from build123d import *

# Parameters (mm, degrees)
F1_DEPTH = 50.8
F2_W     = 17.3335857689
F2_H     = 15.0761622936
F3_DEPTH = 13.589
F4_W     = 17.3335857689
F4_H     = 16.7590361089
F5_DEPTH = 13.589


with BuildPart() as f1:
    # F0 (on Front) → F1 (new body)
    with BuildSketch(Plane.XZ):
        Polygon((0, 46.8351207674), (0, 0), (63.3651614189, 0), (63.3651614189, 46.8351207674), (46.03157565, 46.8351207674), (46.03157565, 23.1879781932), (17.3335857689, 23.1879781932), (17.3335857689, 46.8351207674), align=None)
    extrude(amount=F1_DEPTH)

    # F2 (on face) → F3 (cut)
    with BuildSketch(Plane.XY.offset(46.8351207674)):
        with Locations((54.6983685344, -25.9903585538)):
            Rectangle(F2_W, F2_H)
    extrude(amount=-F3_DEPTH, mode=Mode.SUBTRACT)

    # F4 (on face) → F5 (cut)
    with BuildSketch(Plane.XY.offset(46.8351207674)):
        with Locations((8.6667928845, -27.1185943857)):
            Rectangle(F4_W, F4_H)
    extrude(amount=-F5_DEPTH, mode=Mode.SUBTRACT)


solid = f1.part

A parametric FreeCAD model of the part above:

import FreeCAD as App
import Part
import Sketcher
Q = App.Units.Quantity

doc = App.newDocument("Part")
body = doc.addObject("PartDesign::Body", "Body")

sketch1 = doc.addObject("Sketcher::SketchObject", "Sketch")
body.addObject(sketch1)
sketch1.AttachmentSupport = (doc.XZ_Plane, [""])
sketch1.MapMode = "FlatFace"
sketch1.addGeometry(Part.LineSegment(App.Vector(0, 47, 0), App.Vector(0, 0, 0)), False)
sketch1.addGeometry(Part.LineSegment(App.Vector(0, 0, 0), App.Vector(63, 0, 0)), False)
sketch1.addGeometry(Part.LineSegment(App.Vector(63, 0, 0), App.Vector(63, 47, 0)), False)
sketch1.addGeometry(Part.LineSegment(App.Vector(63, 47, 0), App.Vector(46, 47, 0)), False)
sketch1.addGeometry(Part.LineSegment(App.Vector(46, 47, 0), App.Vector(46, 23, 0)), False)
sketch1.addGeometry(Part.LineSegment(App.Vector(46, 23, 0), App.Vector(17, 23, 0)), False)
sketch1.addGeometry(Part.LineSegment(App.Vector(17, 23, 0), App.Vector(17, 47, 0)), False)
sketch1.addGeometry(Part.LineSegment(App.Vector(17, 47, 0), App.Vector(0, 47, 0)), False)
sketch1.addConstraint(Sketcher.Constraint("Coincident", 0, 2, 1, 1))
sketch1.addConstraint(Sketcher.Constraint("Coincident", 1, 2, 2, 1))
sketch1.addConstraint(Sketcher.Constraint("Coincident", 2, 2, 3, 1))
sketch1.addConstraint(Sketcher.Constraint("Coincident", 3, 2, 4, 1))
sketch1.addConstraint(Sketcher.Constraint("Coincident", 4, 2, 5, 1))
sketch1.addConstraint(Sketcher.Constraint("Coincident", 5, 2, 6, 1))
sketch1.addConstraint(Sketcher.Constraint("Coincident", 6, 2, 7, 1))
sketch1.addConstraint(Sketcher.Constraint("Coincident", 7, 2, 0, 1))
sketch1.addConstraint(Sketcher.Constraint("Vertical", 0))
sketch1.addConstraint(Sketcher.Constraint("Horizontal", 1))
sketch1.addConstraint(Sketcher.Constraint("Vertical", 2))
sketch1.addConstraint(Sketcher.Constraint("Horizontal", 3))
sketch1.addConstraint(Sketcher.Constraint("Vertical", 4))
sketch1.addConstraint(Sketcher.Constraint("Horizontal", 5))
sketch1.addConstraint(Sketcher.Constraint("Vertical", 6))
sketch1.addConstraint(Sketcher.Constraint("Horizontal", 7))
sketch1.addConstraint(Sketcher.Constraint("Coincident", 0, 2, -1, 1))
sketch1.addConstraint(Sketcher.Constraint("Horizontal", 3, 2, 6, 2))
sketch1.addConstraint(Sketcher.Constraint("Equal", 3, 7))
sketch1.addConstraint(Sketcher.Constraint("DistanceX", 1, 1, 1, 2, 63.365161))
sketch1.addConstraint(Sketcher.Constraint("DistanceX", 5, 2, 5, 1, 28.69799))
sketch1.addConstraint(Sketcher.Constraint("DistanceY", 0, 2, 0, 1, 46.835121))
sketch1.addConstraint(Sketcher.Constraint("DistanceY", 4, 2, 4, 1, 23.647143))
pad1 = doc.addObject("PartDesign::Pad", "Pad")
body.addObject(pad1)
pad1.Profile = sketch1
pad1.Length = Q("2 in")

sketch2 = doc.addObject("Sketcher::SketchObject", "Sketch001")
body.addObject(sketch2)
sketch2.AttachmentSupport = (doc.XY_Plane, [""])
sketch2.MapMode = "FlatFace"
sketch2.AttachmentOffset = App.Placement(App.Vector(0, 0, 46.835121), App.Rotation())
sketch2.addGeometry(Part.LineSegment(App.Vector(46, -18, 0), App.Vector(46, -34, 0)), False)
sketch2.addGeometry(Part.LineSegment(App.Vector(46, -34, 0), App.Vector(63, -34, 0)), False)
sketch2.addGeometry(Part.LineSegment(App.Vector(63, -34, 0), App.Vector(63, -18, 0)), False)
sketch2.addGeometry(Part.LineSegment(App.Vector(63, -18, 0), App.Vector(46, -18, 0)), False)
sketch2.addConstraint(Sketcher.Constraint("Coincident", 0, 2, 1, 1))
sketch2.addConstraint(Sketcher.Constraint("Coincident", 1, 2, 2, 1))
sketch2.addConstraint(Sketcher.Constraint("Coincident", 2, 2, 3, 1))
sketch2.addConstraint(Sketcher.Constraint("Coincident", 3, 2, 0, 1))
sketch2.addConstraint(Sketcher.Constraint("Vertical", 0))
sketch2.addConstraint(Sketcher.Constraint("Horizontal", 1))
sketch2.addConstraint(Sketcher.Constraint("Vertical", 2))
sketch2.addConstraint(Sketcher.Constraint("Horizontal", 3))
sketch2.addConstraint(Sketcher.Constraint("DistanceX", 1, 1, 1, 2, 17.333586))
sketch2.addConstraint(Sketcher.Constraint("DistanceY", 0, 2, 0, 1, 15.076162))
sketch2.addConstraint(Sketcher.Constraint("DistanceY", 0, 2, -1, 1, 33.52844))
sketch2.addConstraint(Sketcher.Constraint("DistanceX", -1, 1, 1, 2, 63.365161))
pocket1 = doc.addObject("PartDesign::Pocket", "Pocket")
body.addObject(pocket1)
pocket1.Profile = sketch2
pocket1.Length = Q("0.535 in")

sketch3 = doc.addObject("Sketcher::SketchObject", "Sketch002")
body.addObject(sketch3)
sketch3.AttachmentSupport = (doc.XY_Plane, [""])
sketch3.MapMode = "FlatFace"
sketch3.AttachmentOffset = App.Placement(App.Vector(0, 0, 46.835121), App.Rotation())
sketch3.addGeometry(Part.LineSegment(App.Vector(0, -19, 0), App.Vector(0, -35, 0)), False)
sketch3.addGeometry(Part.LineSegment(App.Vector(0, -35, 0), App.Vector(17, -35, 0)), False)
sketch3.addGeometry(Part.LineSegment(App.Vector(17, -35, 0), App.Vector(17, -19, 0)), False)
sketch3.addGeometry(Part.LineSegment(App.Vector(17, -19, 0), App.Vector(0, -19, 0)), False)
sketch3.addConstraint(Sketcher.Constraint("Coincident", 0, 2, 1, 1))
sketch3.addConstraint(Sketcher.Constraint("Coincident", 1, 2, 2, 1))
sketch3.addConstraint(Sketcher.Constraint("Coincident", 2, 2, 3, 1))
sketch3.addConstraint(Sketcher.Constraint("Coincident", 3, 2, 0, 1))
sketch3.addConstraint(Sketcher.Constraint("Vertical", 0))
sketch3.addConstraint(Sketcher.Constraint("Horizontal", 1))
sketch3.addConstraint(Sketcher.Constraint("Vertical", 2))
sketch3.addConstraint(Sketcher.Constraint("Horizontal", 3))
sketch3.addConstraint(Sketcher.Constraint("PointOnObject", 0, 2, -2))
sketch3.addConstraint(Sketcher.Constraint("DistanceX", 1, 1, 1, 2, 17.333586))
sketch3.addConstraint(Sketcher.Constraint("DistanceY", 0, 2, 0, 1, 16.759036))
sketch3.addConstraint(Sketcher.Constraint("DistanceY", 0, 2, -1, 1, 35.498112))
pocket2 = doc.addObject("PartDesign::Pocket", "Pocket001")
body.addObject(pocket2)
pocket2.Profile = sketch3
pocket2.Length = Q("0.535 in")

doc.recompute()
